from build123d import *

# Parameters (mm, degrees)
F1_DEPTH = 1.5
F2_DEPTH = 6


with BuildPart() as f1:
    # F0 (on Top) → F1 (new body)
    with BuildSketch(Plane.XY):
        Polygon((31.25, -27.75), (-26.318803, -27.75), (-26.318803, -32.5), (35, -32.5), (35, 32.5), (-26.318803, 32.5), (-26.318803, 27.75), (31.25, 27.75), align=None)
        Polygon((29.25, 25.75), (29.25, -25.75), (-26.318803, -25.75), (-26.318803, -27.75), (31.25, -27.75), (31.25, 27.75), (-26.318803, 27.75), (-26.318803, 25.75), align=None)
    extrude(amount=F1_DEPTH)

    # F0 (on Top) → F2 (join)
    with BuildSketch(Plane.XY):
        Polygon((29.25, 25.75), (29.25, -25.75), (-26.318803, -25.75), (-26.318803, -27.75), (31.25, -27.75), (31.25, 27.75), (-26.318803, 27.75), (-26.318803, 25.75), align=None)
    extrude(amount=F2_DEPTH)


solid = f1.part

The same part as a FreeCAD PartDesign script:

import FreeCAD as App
import Part
import Sketcher

doc = App.newDocument("Part")
body = doc.addObject("PartDesign::Body", "Body")

# Sketch on XY plane
sketch1 = body.newObject("Sketcher::SketchObject", "Sketch")
sketch1.AttachmentSupport = (doc.getObject("XY_Plane"), [""])
sketch1.MapMode = "FlatFace"
sketch1.addGeometry(Part.LineSegment(App.Vector(-26, -32, 0), App.Vector(35, -32, 0)), False)
sketch1.addGeometry(Part.LineSegment(App.Vector(35, -32, 0), App.Vector(35, 32, 0)), False)
sketch1.addGeometry(Part.LineSegment(App.Vector(35, 32, 0), App.Vector(-26, 32, 0)), False)
sketch1.addGeometry(Part.LineSegment(App.Vector(-26, 32, 0), App.Vector(-26, 26, 0)), False)
sketch1.addGeometry(Part.LineSegment(App.Vector(-26, 26, 0), App.Vector(29, 26, 0)), False)
sketch1.addGeometry(Part.LineSegment(App.Vector(29, 26, 0), App.Vector(29, -26, 0)), False)
sketch1.addGeometry(Part.LineSegment(App.Vector(29, -26, 0), App.Vector(-26, -26, 0)), False)
sketch1.addGeometry(Part.LineSegment(App.Vector(-26, -26, 0), App.Vector(-26, -32, 0)), False)
sketch1.addConstraint(Sketcher.Constraint("Coincident", 0, 2, 1, 1))
sketch1.addConstraint(Sketcher.Constraint("Coincident", 1, 2, 2, 1))
sketch1.addConstraint(Sketcher.Constraint("Coincident", 2, 2, 3, 1))
sketch1.addConstraint(Sketcher.Constraint("Coincident", 3, 2, 4, 1))
sketch1.addConstraint(Sketcher.Constraint("Coincident", 4, 2, 5, 1))
sketch1.addConstraint(Sketcher.Constraint("Coincident", 5, 2, 6, 1))
sketch1.addConstraint(Sketcher.Constraint("Coincident", 6, 2, 7, 1))
sketch1.addConstraint(Sketcher.Constraint("Coincident", 7, 2, 0, 1))
sketch1.addConstraint(Sketcher.Constraint("Horizontal", 0))
sketch1.addConstraint(Sketcher.Constraint("Vertical", 1))
sketch1.addConstraint(Sketcher.Constraint("Horizontal", 2))
sketch1.addConstraint(Sketcher.Constraint("Vertical", 3))
sketch1.addConstraint(Sketcher.Constraint("Horizontal", 4))
sketch1.addConstraint(Sketcher.Constraint("Vertical", 5))
sketch1.addConstraint(Sketcher.Constraint("Horizontal", 6))
sketch1.addConstraint(Sketcher.Constraint("Vertical", 7))
sketch1.addConstraint(Sketcher.Constraint("Symmetric", 3, 2, 6, 2, -1))
sketch1.addConstraint(Sketcher.Constraint("Equal", 3, 7))
sketch1.addConstraint(Sketcher.Constraint("DistanceY", 1, 1, 1, 2, 65.0))
sketch1.addConstraint(Sketcher.Constraint("DistanceY", 5, 2, 5, 1, 51.5))
sketch1.addConstraint(Sketcher.Constraint("DistanceX", -1, 1, 0, 2, 35.0))
sketch1.addConstraint(Sketcher.Constraint("DistanceX", -1, 1, 4, 2, 29.25))
sketch1.addConstraint(Sketcher.Constraint("DistanceX", 0, 1, 0, 2, 61.318803))
pad1 = body.newObject("PartDesign::Pad", "Pad")
pad1.Profile = sketch1
pad1.Length = 1.5

# Sketch on XY plane
sketch2 = body.newObject("Sketcher::SketchObject", "Sketch001")
sketch2.AttachmentSupport = (doc.getObject("XY_Plane"), [""])
sketch2.MapMode = "FlatFace"
sketch2.addGeometry(Part.LineSegment(App.Vector(29.2, 25.8, 0), App.Vector(29.2, -25.8, 0)), False)
sketch2.addGeometry(Part.LineSegment(App.Vector(29.2, -25.8, 0), App.Vector(-26.3, -25.8, 0)), False)
sketch2.addGeometry(Part.LineSegment(App.Vector(-26.3, -25.8, 0), App.Vector(-26.3, -27.8, 0)), False)
sketch2.addGeometry(Part.LineSegment(App.Vector(-26.3, -27.8, 0), App.Vector(31.2, -27.8, 0)), False)
sketch2.addGeometry(Part.LineSegment(App.Vector(31.2, -27.8, 0), App.Vector(31.2, 27.8, 0)), False)
sketch2.addGeometry(Part.LineSegment(App.Vector(31.2, 27.8, 0), App.Vector(-26.3, 27.8, 0)), False)
sketch2.addGeometry(Part.LineSegment(App.Vector(-26.3, 27.8, 0), App.Vector(-26.3, 25.8, 0)), False)
sketch2.addGeometry(Part.LineSegment(App.Vector(-26.3, 25.8, 0), App.Vector(29.2, 25.8, 0)), False)
sketch2.addConstraint(Sketcher.Constraint("Coincident", 0, 2, 1, 1))
sketch2.addConstraint(Sketcher.Constraint("Coincident", 1, 2, 2, 1))
sketch2.addConstraint(Sketcher.Constraint("Coincident", 2, 2, 3, 1))
sketch2.addConstraint(Sketcher.Constraint("Coincident", 3, 2, 4, 1))
sketch2.addConstraint(Sketcher.Constraint("Coincident", 4, 2, 5, 1))
sketch2.addConstraint(Sketcher.Constraint("Coincident", 5, 2, 6, 1))
sketch2.addConstraint(Sketcher.Constraint("Coincident", 6, 2, 7, 1))
sketch2.addConstraint(Sketcher.Constraint("Coincident", 7, 2, 0, 1))
sketch2.addConstraint(Sketcher.Constraint("Vertical", 0))
sketch2.addConstraint(Sketcher.Constraint("Horizontal", 1))
sketch2.addConstraint(Sketcher.Constraint("Vertical", 2))
sketch2.addConstraint(Sketcher.Constraint("Horizontal", 3))
sketch2.addConstraint(Sketcher.Constraint("Vertical", 4))
sketch2.addConstraint(Sketcher.Constraint("Horizontal", 5))
sketch2.addConstraint(Sketcher.Constraint("Vertical", 6))
sketch2.addConstraint(Sketcher.Constraint("Horizontal", 7))
sketch2.addConstraint(Sketcher.Constraint("Symmetric", 2, 2, 5, 2, -1))
sketch2.addConstraint(Sketcher.Constraint("Equal", 2, 6))
sketch2.addConstraint(Sketcher.Constraint("DistanceY", 2, 2, 2, 1, 2.0))
sketch2.addConstraint(Sketcher.Constraint("DistanceY", 0, 2, 0, 1, 51.5))
sketch2.addConstraint(Sketcher.Constraint("DistanceX", 0, 2, 3, 2, 2.0))
sketch2.addConstraint(Sketcher.Constraint("DistanceX", -1, 1, 0, 2, 29.25))
sketch2.addConstraint(Sketcher.Constraint("DistanceX", 1, 2, 1, 1, 55.568803))
pad2 = body.newObject("PartDesign::Pad", "Pad001")
pad2.Profile = sketch2
pad2.Length = 6

doc.recompute()
